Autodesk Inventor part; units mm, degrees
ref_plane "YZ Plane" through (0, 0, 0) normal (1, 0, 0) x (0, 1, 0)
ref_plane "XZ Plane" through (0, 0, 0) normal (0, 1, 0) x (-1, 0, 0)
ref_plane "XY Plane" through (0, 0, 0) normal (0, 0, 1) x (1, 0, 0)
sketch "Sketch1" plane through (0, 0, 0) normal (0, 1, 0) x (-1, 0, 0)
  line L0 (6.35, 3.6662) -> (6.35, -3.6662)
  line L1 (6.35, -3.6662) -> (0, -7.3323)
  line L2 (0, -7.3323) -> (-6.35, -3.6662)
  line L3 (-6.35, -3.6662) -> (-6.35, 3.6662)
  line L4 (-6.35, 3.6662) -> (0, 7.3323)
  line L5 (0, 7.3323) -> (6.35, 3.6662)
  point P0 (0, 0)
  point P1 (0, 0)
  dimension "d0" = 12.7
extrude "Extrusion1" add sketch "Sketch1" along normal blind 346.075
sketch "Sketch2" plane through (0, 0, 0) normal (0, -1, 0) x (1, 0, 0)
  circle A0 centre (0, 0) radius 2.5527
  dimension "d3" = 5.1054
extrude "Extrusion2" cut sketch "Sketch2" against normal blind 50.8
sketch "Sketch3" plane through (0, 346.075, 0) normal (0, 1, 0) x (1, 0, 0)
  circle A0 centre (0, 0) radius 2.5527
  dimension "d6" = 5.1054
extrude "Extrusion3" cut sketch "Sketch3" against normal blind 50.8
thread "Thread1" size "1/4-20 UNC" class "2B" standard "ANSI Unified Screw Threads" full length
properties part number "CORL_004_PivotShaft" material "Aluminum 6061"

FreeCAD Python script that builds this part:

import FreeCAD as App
import Part
import Sketcher
Q = App.Units.Quantity


def add_polygon(sketch, points):
    """Adds a closed chain of lines whose ends are joined by coincident constraints."""
    first, n = sketch.GeometryCount, len(points)
    for a, b in zip(points, points[1:] + points[:1]):
        sketch.addGeometry(Part.LineSegment(App.Vector(*a, 0), App.Vector(*b, 0)), False)
    for i in range(n):
        sketch.addConstraint(Sketcher.Constraint("Coincident", first + i, 2, first + (i + 1) % n, 1))

doc = App.newDocument("Part")
body = doc.addObject("PartDesign::Body", "Body")

# Sketch on XZ plane
sketch1 = body.newObject("Sketcher::SketchObject", "Sketch")
sketch1.AttachmentSupport = (doc.getObject("XZ_Plane"), [""])
sketch1.MapMode = "FlatFace"
add_polygon(sketch1, [(-6, -4), (-6, 4), (0, 7), (6, 4), (6, -4), (0, -7)])  # lines 0-5
sketch1.addConstraint([
    Sketcher.Constraint("Vertical", 0),
    Sketcher.Constraint("Vertical", 3),
    Sketcher.Constraint("Symmetric", 0, 2, 3, 2, -1, 1),
    Sketcher.Constraint("Symmetric", 1, 2, 4, 2, -1, 1),
    Sketcher.Constraint("PointOnObject", 1, 2, -2),
    Sketcher.Constraint("Parallel", 2, 5),
    Sketcher.Constraint("Horizontal", 0, 2, 2, 2),
    Sketcher.Constraint("DistanceX", 0, 2, 2, 2, Q("0.5 in")),
    Sketcher.Constraint("Angle", 1, Q("29.9995 deg")),
    Sketcher.Constraint("DistanceY", 3, 2, 1, 2, Q("0.433 in")),
])
pad1 = body.newObject("PartDesign::Pad", "Pad")
pad1.Profile = sketch1
pad1.Length = Q("13.625 in")
pad1.Reversed = True

# Sketch on XZ plane
sketch2 = body.newObject("Sketcher::SketchObject", "Sketch001")
sketch2.AttachmentSupport = (doc.getObject("XZ_Plane"), [""])
sketch2.MapMode = "FlatFace"
sketch2.addGeometry(Part.Circle(App.Vector(0, 0, 0), App.Vector(0, 0, 1), 2.6), False)
sketch2.addConstraint([
    Sketcher.Constraint("Coincident", 0, 3, -1, 1),
    Sketcher.Constraint("Diameter", 0, Q("0.201 in")),
])
pocket1 = body.newObject("PartDesign::Pocket", "Pocket")
pocket1.Profile = sketch2
pocket1.Length = Q("2 in")

# Sketch on XZ plane
sketch3 = body.newObject("Sketcher::SketchObject", "Sketch002")
sketch3.AttachmentSupport = (doc.getObject("XZ_Plane"), [""])
sketch3.MapMode = "FlatFace"
sketch3.AttachmentOffset = App.Placement(App.Vector(0, 0, -13.625 * 25.4), App.Rotation())
sketch3.addGeometry(Part.Circle(App.Vector(0, 0, 0), App.Vector(0, 0, 1), 2.6), False)
sketch3.addConstraint([
    Sketcher.Constraint("Coincident", 0, 3, -1, 1),
    Sketcher.Constraint("Diameter", 0, Q("0.201 in")),
])
pocket2 = body.newObject("PartDesign::Pocket", "Pocket001")
pocket2.Profile = sketch3
pocket2.Length = Q("2 in")
pocket2.Reversed = True

doc.recompute()
